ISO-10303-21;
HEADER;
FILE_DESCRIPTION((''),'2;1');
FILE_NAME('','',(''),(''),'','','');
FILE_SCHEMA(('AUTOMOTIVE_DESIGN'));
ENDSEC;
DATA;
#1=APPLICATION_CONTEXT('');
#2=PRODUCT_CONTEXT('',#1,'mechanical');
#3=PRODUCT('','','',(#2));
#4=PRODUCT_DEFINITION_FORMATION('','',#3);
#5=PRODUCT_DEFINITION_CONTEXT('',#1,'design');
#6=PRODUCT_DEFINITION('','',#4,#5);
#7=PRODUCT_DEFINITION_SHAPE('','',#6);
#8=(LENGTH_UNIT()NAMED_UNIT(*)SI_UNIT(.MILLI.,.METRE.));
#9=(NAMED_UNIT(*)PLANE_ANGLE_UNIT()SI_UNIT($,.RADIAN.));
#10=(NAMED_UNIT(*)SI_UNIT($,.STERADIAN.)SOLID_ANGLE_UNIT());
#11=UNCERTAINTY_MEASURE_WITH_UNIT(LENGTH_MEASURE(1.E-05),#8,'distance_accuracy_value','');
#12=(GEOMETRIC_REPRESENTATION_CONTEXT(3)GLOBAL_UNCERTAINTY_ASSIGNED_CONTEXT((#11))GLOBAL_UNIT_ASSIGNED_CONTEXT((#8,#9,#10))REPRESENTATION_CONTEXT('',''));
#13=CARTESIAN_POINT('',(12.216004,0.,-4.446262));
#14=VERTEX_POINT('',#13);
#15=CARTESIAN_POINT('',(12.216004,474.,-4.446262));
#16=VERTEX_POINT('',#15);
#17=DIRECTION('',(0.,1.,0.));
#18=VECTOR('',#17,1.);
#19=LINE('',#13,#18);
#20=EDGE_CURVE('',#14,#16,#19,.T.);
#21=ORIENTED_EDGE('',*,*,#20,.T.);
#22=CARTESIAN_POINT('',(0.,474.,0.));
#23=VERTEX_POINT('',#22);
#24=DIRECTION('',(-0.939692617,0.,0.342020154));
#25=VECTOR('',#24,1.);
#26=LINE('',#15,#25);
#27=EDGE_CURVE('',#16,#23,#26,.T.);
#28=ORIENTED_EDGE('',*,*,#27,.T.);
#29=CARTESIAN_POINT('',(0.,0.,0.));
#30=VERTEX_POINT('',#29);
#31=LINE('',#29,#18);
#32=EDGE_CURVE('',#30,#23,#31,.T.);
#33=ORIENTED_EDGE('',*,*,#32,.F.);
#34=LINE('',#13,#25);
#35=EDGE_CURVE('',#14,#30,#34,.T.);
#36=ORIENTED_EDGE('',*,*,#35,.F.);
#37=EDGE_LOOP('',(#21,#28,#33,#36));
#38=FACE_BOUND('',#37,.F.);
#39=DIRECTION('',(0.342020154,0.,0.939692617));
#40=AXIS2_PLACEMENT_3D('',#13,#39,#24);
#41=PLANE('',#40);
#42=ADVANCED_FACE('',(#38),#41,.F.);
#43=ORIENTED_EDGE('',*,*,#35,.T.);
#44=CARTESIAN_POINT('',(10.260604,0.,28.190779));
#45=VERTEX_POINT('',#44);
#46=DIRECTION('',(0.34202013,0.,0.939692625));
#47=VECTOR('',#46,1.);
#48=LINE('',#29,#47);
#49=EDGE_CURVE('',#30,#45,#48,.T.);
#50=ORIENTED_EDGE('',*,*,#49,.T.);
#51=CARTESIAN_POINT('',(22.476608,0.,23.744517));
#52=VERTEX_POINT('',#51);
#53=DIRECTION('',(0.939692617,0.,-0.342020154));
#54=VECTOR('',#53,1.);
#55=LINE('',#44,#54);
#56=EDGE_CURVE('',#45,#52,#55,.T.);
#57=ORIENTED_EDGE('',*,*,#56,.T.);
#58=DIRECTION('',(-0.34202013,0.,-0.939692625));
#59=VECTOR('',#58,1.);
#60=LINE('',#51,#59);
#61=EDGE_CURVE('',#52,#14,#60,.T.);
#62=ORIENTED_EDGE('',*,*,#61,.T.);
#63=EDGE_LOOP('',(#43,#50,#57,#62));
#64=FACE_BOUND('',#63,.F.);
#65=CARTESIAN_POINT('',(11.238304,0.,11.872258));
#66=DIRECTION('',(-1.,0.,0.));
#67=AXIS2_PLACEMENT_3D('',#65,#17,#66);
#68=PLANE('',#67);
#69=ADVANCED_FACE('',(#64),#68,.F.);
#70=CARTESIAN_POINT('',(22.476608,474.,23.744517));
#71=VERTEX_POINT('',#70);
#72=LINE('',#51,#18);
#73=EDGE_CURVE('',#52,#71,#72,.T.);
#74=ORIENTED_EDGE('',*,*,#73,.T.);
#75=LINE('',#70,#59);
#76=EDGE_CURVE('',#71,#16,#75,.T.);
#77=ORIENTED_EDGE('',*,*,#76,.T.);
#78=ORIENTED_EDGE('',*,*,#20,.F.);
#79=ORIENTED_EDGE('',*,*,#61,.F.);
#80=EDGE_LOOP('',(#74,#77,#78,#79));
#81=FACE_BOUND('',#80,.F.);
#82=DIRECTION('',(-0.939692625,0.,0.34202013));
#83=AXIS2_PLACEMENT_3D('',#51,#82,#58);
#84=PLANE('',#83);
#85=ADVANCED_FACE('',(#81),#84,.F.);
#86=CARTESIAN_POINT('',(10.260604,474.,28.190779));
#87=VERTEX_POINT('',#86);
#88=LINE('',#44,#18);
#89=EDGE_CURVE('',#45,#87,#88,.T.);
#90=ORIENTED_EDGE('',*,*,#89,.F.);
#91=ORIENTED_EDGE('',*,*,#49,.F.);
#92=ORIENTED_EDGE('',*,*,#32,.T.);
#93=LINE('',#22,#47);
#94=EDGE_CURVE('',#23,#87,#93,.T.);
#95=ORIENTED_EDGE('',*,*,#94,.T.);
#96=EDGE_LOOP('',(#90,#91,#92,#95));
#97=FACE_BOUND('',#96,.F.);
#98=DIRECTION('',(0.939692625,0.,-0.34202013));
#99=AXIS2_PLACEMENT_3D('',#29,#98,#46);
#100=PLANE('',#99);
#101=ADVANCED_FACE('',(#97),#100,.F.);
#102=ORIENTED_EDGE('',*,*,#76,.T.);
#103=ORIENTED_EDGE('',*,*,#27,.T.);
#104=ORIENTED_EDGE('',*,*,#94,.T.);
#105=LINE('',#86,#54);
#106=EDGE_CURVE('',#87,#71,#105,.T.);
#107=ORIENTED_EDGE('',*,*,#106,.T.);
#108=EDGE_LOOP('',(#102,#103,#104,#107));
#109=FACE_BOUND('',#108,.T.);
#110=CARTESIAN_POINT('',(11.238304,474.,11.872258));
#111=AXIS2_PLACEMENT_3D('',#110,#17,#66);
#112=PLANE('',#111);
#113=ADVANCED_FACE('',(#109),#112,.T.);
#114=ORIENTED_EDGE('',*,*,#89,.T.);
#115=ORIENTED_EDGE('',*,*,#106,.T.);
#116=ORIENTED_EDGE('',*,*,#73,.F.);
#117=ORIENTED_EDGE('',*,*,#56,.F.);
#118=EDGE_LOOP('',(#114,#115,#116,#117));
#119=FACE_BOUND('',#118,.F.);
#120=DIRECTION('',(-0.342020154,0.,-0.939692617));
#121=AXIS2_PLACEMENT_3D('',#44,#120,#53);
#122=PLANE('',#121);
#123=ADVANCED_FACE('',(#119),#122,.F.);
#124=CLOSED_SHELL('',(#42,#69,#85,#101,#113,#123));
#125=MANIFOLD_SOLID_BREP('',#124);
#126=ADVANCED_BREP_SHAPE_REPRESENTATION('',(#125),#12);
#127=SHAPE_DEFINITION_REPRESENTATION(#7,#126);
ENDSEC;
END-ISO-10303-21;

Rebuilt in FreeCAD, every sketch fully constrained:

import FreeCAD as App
import Part
import Sketcher

V = App.Vector
Q = App.Units.Quantity

doc = App.newDocument("Part")
params = doc.addObject("Spreadsheet::Sheet", "Params")
for row, (alias, value) in enumerate([
    ("sketch1_length", "30 mm"),
    ("sketch1_length2", "13 mm"),
    ("pad1_length", "474 mm"),
], start=1):
    params.set(f"A{row}", alias)
    params.set(f"B{row}", "=" + value)
    params.setAlias(f"B{row}", alias)

body = doc.addObject("PartDesign::Body", "Body")

sketch1 = body.newObject("Sketcher::SketchObject", "Sketch")
sketch1.AttachmentSupport = (doc.getObject("XZ_Plane"), [""])
sketch1.MapMode = "FlatFace"
sketch1.addGeometry([
    Part.LineSegment(V(10.260604, 28.190779, 0), V(0, 0, 0)),
    Part.LineSegment(V(0, 0, 0), V(12.216004, -4.446262, 0)),
    Part.LineSegment(V(12.216004, -4.446262, 0), V(22.476608, 23.744517, 0)),
    Part.LineSegment(V(22.476608, 23.744517, 0), V(10.260604, 28.190779, 0)),
], False)
sketch1.addConstraint([
    Sketcher.Constraint("Coincident", 0, 2, 1, 1),
    Sketcher.Constraint("Coincident", 1, 2, 2, 1),
    Sketcher.Constraint("Coincident", 2, 2, 3, 1),
    Sketcher.Constraint("Coincident", 3, 2, 0, 1),
    Sketcher.Constraint("Coincident", 0, 2, -1, 1),
    Sketcher.Constraint("Perpendicular", 0, 1),
    Sketcher.Constraint("Perpendicular", 1, 2),
    Sketcher.Constraint("Perpendicular", 2, 3),
    Sketcher.Constraint("Angle", 0, Q("-109.999999 deg")),
    Sketcher.Constraint("Distance", 0, 30.0),
    Sketcher.Constraint("Distance", 1, 13.0),
])
sketch1.setExpression("Constraints[9]", "Params.sketch1_length")
sketch1.setExpression("Constraints[10]", "Params.sketch1_length2")
pad1 = body.newObject("PartDesign::Pad", "Pad")
pad1.Profile = sketch1
pad1.setExpression("Length", "Params.pad1_length")
pad1.Reversed = True

doc.recompute()
